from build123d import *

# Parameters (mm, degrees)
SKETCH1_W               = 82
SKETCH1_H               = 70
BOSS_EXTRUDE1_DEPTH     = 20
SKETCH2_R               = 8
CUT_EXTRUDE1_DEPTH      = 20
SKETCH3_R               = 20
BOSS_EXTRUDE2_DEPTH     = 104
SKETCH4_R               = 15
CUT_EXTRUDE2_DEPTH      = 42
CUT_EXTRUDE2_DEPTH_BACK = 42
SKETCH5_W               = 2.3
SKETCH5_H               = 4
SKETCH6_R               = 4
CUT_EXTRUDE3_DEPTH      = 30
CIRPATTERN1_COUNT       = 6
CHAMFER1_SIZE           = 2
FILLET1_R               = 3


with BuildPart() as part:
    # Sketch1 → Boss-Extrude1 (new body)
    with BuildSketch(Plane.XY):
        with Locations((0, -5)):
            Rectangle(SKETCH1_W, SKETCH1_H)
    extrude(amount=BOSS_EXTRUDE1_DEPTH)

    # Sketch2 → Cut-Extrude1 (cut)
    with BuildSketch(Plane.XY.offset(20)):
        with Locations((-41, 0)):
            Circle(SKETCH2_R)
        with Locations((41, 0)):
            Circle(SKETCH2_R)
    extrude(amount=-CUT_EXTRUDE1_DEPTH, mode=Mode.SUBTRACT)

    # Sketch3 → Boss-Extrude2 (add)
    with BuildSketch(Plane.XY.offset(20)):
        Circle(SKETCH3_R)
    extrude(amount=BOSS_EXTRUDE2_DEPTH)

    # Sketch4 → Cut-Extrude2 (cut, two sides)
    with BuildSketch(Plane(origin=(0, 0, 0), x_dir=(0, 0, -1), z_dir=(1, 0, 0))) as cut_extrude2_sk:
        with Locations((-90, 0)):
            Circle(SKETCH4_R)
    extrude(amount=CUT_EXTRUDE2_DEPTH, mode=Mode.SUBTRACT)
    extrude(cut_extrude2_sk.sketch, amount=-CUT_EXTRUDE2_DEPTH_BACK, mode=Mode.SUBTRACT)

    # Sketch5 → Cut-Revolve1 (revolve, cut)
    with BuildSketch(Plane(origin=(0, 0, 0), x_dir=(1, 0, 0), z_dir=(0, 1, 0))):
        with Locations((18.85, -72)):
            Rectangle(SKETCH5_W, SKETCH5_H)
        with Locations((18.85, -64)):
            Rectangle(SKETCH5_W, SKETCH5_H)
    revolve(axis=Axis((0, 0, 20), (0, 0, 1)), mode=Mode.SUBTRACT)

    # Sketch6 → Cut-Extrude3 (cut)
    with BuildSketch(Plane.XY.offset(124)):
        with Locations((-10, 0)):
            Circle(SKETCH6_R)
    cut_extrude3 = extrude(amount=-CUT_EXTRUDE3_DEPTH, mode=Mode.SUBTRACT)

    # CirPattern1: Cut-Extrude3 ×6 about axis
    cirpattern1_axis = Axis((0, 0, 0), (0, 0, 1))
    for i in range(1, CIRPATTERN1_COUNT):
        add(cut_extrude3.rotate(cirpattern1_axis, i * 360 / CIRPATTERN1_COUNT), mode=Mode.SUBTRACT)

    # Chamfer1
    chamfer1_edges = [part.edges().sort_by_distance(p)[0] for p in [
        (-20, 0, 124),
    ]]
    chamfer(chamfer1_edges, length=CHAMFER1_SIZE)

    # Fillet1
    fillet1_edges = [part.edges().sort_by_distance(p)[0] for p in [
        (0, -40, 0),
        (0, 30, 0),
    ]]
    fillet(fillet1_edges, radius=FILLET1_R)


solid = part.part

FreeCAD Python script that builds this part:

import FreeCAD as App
import Part
import Sketcher


def edges_at(feature, points):
    """Names of the edges that pass closest to the given points."""
    edges = feature.Shape.Edges
    near = lambda p: min(range(len(edges)), key=lambda i: edges[i].distToShape(Part.Vertex(*p))[0])
    return sorted({f"Edge{near(p) + 1}" for p in points})


def add_polygon(sketch, points):
    """Adds a closed chain of lines whose ends are joined by coincident constraints."""
    first, n = sketch.GeometryCount, len(points)
    for a, b in zip(points, points[1:] + points[:1]):
        sketch.addGeometry(Part.LineSegment(App.Vector(*a, 0), App.Vector(*b, 0)), False)
    for i in range(n):
        sketch.addConstraint(Sketcher.Constraint("Coincident", first + i, 2, first + (i + 1) % n, 1))

doc = App.newDocument("Part")
body = doc.addObject("PartDesign::Body", "Body")

sketch1 = doc.addObject("Sketcher::SketchObject", "Sketch")
body.addObject(sketch1)
sketch1.AttachmentSupport = (doc.XY_Plane, [""])
sketch1.MapMode = "FlatFace"
add_polygon(sketch1, [(-41, 30), (-41, -40), (41, -40), (41, 30)])
sketch1.addConstraint([
    Sketcher.Constraint("Vertical", 0),
    Sketcher.Constraint("Horizontal", 1),
    Sketcher.Constraint("Vertical", 2),
    Sketcher.Constraint("Horizontal", 3),
    Sketcher.Constraint("DistanceX", 1, 1, 1, 2, 82.0),
    Sketcher.Constraint("DistanceY", 0, 2, 0, 1, 70.0),
    Sketcher.Constraint("DistanceX", 0, 2, -1, 1, 41.0),
    Sketcher.Constraint("DistanceY", 0, 2, -1, 1, 40.0),
])
pad1 = doc.addObject("PartDesign::Pad", "Pad")
body.addObject(pad1)
pad1.Profile = sketch1
pad1.Length = 20

sketch2 = doc.addObject("Sketcher::SketchObject", "Sketch001")
body.addObject(sketch2)
sketch2.AttachmentSupport = (doc.XY_Plane, [""])
sketch2.MapMode = "FlatFace"
sketch2.AttachmentOffset = App.Placement(App.Vector(0, 0, 20), App.Rotation())
sketch2.addGeometry([
    Part.Circle(App.Vector(-41, 0, 0), App.Vector(0, 0, 1), 8),
    Part.Circle(App.Vector(41, 0, 0), App.Vector(0, 0, 1), 8),
], False)
sketch2.addConstraint([
    Sketcher.Constraint("Equal", 0, 1),
    Sketcher.Constraint("Symmetric", 0, 3, 1, 3, -1, 1),
    Sketcher.Constraint("PointOnObject", 0, 3, -1),
    Sketcher.Constraint("Diameter", 0, 16.0),
    Sketcher.Constraint("DistanceX", 0, 3, -1, 1, 41.0),
])
pocket1 = doc.addObject("PartDesign::Pocket", "Pocket")
body.addObject(pocket1)
pocket1.Profile = sketch2
pocket1.Length = 20

sketch3 = doc.addObject("Sketcher::SketchObject", "Sketch002")
body.addObject(sketch3)
sketch3.AttachmentSupport = (doc.XY_Plane, [""])
sketch3.MapMode = "FlatFace"
sketch3.AttachmentOffset = App.Placement(App.Vector(0, 0, 20), App.Rotation())
sketch3.addGeometry(Part.Circle(App.Vector(0, 0, 0), App.Vector(0, 0, 1), 20), False)
sketch3.addConstraint([
    Sketcher.Constraint("Coincident", 0, 3, -1, 1),
    Sketcher.Constraint("Diameter", 0, 40.0),
])
pad2 = doc.addObject("PartDesign::Pad", "Pad001")
body.addObject(pad2)
pad2.Profile = sketch3
pad2.Length = 104

sketch4 = doc.addObject("Sketcher::SketchObject", "Sketch003")
body.addObject(sketch4)
sketch4.AttachmentSupport = (doc.YZ_Plane, [""])
sketch4.MapMode = "FlatFace"
sketch4.addGeometry(Part.Circle(App.Vector(0, 90, 0), App.Vector(0, 0, 1), 15), False)
sketch4.addConstraint([
    Sketcher.Constraint("PointOnObject", 0, 3, -2),
    Sketcher.Constraint("Diameter", 0, 30.0),
    Sketcher.Constraint("DistanceY", -1, 1, 0, 3, 90.0),
])
pocket2 = doc.addObject("PartDesign::Pocket", "Pocket001")
body.addObject(pocket2)
pocket2.Profile = sketch4
pocket2.Type = "ThroughAll"
pocket2.Midplane = True

sketch5 = doc.addObject("Sketcher::SketchObject", "Sketch004")
body.addObject(sketch5)
sketch5.AttachmentSupport = (doc.XZ_Plane, [""])
sketch5.MapMode = "FlatFace"
add_polygon(sketch5, [(17.7, 70), (17.7, 74), (20, 74), (20, 70)])
add_polygon(sketch5, [(17.7, 62), (17.7, 66), (20, 66), (20, 62)])
sketch5.addConstraint([
    Sketcher.Constraint("Vertical", 0),
    Sketcher.Constraint("Horizontal", 1),
    Sketcher.Constraint("Vertical", 2),
    Sketcher.Constraint("Horizontal", 3),
    Sketcher.Constraint("Vertical", 4),
    Sketcher.Constraint("Horizontal", 5),
    Sketcher.Constraint("Vertical", 6),
    Sketcher.Constraint("Horizontal", 7),
    Sketcher.Constraint("Vertical", 3, 2, 4, 2),
    Sketcher.Constraint("Vertical", 2, 2, 5, 2),
    Sketcher.Constraint("Equal", 2, 4),
    Sketcher.Constraint("DistanceY", 0, 1, 0, 2, 4.0),
    Sketcher.Constraint("DistanceX", 1, 1, 1, 2, 2.3),
    Sketcher.Constraint("DistanceY", -1, 1, 0, 2, 74.0),
    Sketcher.Constraint("DistanceX", -1, 1, 1, 2, 20.0),
    Sketcher.Constraint("DistanceY", -1, 1, 4, 2, 66.0),
])
groove = doc.addObject("PartDesign::Groove", "Groove")
body.addObject(groove)
groove.Profile = sketch5
groove.ReferenceAxis = (sketch5, ["V_Axis"])
groove.Angle = 360

sketch6 = doc.addObject("Sketcher::SketchObject", "Sketch005")
body.addObject(sketch6)
sketch6.AttachmentSupport = (doc.XY_Plane, [""])
sketch6.MapMode = "FlatFace"
sketch6.AttachmentOffset = App.Placement(App.Vector(0, 0, 124), App.Rotation())
sketch6.addGeometry(Part.Circle(App.Vector(-10, 0, 0), App.Vector(0, 0, 1), 4), False)
sketch6.addConstraint([
    Sketcher.Constraint("PointOnObject", 0, 3, -1),
    Sketcher.Constraint("Diameter", 0, 8.0),
    Sketcher.Constraint("DistanceX", 0, 3, -1, 1, 10.0),
])
pocket3 = doc.addObject("PartDesign::Pocket", "Pocket002")
body.addObject(pocket3)
pocket3.Profile = sketch6
pocket3.Length = 30
doc.recompute()

polarpattern = doc.addObject("PartDesign::PolarPattern", "PolarPattern")
body.addObject(polarpattern)
polarpattern.Originals = [pocket3]
polarpattern.Axis = (doc.Z_Axis, [""])
polarpattern.Angle = 360
polarpattern.Occurrences = 6
body.Tip = polarpattern
doc.recompute()

chamfer = doc.addObject("PartDesign::Chamfer", "Chamfer")
body.addObject(chamfer)
chamfer.Base = (polarpattern, edges_at(polarpattern, [(-20, 0, 124)]))
chamfer.Size = 2
doc.recompute()

fillet = doc.addObject("PartDesign::Fillet", "Fillet")
body.addObject(fillet)
fillet.Base = (chamfer, edges_at(chamfer, [(0, -40, 0), (0, 30, 0)]))
fillet.Radius = 3

doc.recompute()
